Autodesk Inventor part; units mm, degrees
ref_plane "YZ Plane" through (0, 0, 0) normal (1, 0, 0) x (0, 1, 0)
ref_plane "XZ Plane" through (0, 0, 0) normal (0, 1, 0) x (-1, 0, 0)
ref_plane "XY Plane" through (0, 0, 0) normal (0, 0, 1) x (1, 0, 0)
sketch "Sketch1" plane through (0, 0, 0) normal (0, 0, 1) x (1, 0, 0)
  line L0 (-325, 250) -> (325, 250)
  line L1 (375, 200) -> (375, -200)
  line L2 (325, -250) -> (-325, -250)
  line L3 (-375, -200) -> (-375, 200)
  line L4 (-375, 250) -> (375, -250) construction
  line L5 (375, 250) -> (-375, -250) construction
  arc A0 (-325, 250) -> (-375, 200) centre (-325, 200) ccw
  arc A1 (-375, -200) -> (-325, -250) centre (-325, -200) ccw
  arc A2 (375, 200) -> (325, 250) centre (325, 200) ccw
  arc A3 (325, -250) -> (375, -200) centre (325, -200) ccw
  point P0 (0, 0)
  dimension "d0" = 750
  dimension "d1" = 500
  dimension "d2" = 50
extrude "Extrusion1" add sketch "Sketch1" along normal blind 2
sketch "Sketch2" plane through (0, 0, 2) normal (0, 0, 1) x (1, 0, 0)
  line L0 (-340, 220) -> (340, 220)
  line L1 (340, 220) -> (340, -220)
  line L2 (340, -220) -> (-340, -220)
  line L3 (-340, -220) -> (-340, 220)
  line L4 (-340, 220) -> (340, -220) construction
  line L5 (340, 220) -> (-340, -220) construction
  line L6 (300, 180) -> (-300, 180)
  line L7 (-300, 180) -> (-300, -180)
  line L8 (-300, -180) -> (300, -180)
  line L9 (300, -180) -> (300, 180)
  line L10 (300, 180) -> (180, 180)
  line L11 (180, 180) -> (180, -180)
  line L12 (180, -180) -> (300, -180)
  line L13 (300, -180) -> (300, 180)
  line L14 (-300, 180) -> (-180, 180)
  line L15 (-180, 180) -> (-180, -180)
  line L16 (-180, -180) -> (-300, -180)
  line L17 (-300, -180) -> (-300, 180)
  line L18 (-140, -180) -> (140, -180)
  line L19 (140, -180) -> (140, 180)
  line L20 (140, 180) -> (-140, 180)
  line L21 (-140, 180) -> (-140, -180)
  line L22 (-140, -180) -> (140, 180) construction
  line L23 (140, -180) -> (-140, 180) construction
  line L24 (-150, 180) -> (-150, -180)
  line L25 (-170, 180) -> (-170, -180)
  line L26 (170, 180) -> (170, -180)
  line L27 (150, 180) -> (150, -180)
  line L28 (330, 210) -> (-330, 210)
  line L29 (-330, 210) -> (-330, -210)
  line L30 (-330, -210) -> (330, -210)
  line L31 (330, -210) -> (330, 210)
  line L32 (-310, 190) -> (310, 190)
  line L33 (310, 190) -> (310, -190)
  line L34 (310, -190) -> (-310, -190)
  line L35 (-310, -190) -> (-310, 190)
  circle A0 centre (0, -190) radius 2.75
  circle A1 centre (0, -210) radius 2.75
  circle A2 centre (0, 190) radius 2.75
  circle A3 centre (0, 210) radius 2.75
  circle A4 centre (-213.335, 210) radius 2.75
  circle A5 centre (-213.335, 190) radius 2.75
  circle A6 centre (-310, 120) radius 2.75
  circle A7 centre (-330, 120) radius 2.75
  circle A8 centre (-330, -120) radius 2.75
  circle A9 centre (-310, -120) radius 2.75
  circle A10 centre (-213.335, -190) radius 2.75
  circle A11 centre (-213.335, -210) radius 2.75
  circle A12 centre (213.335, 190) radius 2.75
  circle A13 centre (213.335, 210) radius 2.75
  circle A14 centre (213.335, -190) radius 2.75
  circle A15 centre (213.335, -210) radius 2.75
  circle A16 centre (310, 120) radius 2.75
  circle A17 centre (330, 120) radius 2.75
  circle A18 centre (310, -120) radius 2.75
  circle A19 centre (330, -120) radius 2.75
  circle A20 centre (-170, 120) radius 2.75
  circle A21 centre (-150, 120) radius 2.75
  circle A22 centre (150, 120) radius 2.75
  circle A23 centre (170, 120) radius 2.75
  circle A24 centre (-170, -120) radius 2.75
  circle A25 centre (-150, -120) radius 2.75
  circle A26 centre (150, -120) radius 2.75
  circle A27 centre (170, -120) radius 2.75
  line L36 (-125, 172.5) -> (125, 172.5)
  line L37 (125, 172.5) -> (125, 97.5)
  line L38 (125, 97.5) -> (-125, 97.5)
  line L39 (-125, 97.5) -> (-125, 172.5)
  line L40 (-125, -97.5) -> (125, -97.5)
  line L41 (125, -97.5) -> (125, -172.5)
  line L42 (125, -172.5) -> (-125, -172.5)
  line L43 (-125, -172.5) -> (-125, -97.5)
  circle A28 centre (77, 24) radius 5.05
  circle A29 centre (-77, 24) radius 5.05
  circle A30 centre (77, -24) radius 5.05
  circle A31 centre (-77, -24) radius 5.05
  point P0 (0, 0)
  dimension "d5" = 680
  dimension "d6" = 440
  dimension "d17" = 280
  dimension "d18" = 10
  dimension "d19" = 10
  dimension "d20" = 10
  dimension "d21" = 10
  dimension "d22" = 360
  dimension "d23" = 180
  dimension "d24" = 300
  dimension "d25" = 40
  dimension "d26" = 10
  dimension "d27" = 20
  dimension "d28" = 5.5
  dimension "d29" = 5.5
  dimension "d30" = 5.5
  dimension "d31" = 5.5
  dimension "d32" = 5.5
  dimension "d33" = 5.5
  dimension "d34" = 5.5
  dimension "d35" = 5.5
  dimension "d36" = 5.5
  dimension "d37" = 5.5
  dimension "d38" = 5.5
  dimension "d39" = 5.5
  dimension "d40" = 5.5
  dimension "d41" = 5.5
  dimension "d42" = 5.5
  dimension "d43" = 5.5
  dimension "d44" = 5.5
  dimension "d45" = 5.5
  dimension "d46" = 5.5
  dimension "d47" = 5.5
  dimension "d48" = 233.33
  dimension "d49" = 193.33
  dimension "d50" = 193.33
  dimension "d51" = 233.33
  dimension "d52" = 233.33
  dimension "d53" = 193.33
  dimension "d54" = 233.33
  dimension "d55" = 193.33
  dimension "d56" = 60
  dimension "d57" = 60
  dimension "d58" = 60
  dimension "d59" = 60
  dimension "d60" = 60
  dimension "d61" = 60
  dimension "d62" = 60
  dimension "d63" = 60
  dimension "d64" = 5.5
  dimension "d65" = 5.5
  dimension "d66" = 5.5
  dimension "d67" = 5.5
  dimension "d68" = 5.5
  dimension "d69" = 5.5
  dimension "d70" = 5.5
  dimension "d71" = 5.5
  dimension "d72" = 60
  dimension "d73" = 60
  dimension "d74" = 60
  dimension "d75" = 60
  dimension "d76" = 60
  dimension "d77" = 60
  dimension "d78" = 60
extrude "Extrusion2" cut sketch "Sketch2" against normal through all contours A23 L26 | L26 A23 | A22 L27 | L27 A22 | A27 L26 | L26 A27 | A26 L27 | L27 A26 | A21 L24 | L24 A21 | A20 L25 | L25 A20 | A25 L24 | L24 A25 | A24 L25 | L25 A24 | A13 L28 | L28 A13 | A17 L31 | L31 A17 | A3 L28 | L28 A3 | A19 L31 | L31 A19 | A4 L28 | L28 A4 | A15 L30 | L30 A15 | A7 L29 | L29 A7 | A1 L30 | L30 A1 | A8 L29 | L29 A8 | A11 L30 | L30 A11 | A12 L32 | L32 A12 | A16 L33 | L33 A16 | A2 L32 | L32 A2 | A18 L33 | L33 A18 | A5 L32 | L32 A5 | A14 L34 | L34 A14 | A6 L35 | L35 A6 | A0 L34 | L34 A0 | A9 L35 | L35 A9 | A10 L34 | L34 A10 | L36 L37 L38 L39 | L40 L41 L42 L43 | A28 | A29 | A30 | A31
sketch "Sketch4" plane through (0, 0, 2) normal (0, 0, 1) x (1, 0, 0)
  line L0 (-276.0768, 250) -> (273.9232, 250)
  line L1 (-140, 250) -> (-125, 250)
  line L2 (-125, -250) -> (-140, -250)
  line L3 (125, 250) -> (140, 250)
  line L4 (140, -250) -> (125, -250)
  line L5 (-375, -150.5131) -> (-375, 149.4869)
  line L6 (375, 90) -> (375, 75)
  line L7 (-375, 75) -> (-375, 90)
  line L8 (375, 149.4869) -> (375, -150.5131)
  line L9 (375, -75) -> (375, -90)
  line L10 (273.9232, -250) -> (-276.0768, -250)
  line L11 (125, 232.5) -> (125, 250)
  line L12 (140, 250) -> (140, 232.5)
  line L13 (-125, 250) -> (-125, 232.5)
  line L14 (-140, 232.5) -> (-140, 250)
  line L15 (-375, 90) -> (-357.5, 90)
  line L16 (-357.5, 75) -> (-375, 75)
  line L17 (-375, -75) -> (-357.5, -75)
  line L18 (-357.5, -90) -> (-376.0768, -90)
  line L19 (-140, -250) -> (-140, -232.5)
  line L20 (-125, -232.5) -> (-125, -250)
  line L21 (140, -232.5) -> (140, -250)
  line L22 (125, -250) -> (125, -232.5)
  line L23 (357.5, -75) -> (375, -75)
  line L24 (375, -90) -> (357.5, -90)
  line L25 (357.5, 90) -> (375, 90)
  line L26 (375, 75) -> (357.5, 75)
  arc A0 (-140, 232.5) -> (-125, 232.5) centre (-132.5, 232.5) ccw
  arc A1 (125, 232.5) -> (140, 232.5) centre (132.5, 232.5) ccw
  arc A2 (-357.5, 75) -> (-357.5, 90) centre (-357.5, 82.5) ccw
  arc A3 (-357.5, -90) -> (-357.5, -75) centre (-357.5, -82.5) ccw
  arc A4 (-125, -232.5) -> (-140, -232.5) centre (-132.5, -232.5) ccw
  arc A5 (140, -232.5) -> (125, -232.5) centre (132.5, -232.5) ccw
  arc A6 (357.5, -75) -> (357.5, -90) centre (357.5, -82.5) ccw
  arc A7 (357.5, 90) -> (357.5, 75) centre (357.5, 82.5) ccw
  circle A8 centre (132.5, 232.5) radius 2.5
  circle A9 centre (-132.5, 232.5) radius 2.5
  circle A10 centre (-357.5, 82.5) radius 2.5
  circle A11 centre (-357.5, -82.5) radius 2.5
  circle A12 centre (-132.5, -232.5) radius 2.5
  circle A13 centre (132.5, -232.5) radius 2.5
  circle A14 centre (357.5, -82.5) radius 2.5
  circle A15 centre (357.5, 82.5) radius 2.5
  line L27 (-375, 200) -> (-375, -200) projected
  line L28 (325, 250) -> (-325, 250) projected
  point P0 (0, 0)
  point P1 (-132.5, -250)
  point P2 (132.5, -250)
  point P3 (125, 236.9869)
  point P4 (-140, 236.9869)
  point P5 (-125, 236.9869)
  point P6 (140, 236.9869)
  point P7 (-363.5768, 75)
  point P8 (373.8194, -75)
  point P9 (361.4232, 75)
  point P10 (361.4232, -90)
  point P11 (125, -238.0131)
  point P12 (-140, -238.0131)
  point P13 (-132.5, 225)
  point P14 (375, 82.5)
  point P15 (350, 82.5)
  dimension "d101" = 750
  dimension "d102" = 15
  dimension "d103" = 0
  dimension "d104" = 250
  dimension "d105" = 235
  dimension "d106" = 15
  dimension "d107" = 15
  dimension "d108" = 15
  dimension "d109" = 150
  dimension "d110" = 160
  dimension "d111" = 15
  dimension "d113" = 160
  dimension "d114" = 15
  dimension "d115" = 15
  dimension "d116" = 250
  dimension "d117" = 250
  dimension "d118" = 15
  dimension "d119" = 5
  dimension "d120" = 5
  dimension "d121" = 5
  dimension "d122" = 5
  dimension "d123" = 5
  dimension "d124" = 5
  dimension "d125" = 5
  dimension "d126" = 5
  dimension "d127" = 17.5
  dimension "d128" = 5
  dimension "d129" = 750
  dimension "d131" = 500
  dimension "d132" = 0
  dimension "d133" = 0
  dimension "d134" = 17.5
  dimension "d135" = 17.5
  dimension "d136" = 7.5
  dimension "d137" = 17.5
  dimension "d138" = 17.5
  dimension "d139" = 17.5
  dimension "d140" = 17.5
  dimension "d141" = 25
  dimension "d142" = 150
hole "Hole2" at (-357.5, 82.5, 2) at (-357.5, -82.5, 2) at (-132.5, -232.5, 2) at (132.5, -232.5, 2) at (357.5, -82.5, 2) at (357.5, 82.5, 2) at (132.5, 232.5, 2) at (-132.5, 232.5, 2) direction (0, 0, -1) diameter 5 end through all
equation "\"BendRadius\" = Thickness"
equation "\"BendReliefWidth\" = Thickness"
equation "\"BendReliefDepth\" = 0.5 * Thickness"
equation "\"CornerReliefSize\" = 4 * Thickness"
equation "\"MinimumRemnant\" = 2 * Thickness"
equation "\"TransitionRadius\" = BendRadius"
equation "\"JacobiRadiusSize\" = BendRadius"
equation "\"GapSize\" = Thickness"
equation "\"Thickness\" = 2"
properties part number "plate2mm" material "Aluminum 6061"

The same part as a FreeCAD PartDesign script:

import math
import FreeCAD as App
import Part
import Sketcher

V = App.Vector


def add_polygon(sketch, points):
    """Adds a closed chain of lines whose ends are joined by coincident constraints."""
    first, n = sketch.GeometryCount, len(points)
    for a, b in zip(points, points[1:] + points[:1]):
        sketch.addGeometry(Part.LineSegment(App.Vector(*a, 0), App.Vector(*b, 0)), False)
    for i in range(n):
        sketch.addConstraint(Sketcher.Constraint("Coincident", first + i, 2, first + (i + 1) % n, 1))

doc = App.newDocument("Part")
body = doc.addObject("PartDesign::Body", "Body")

sketch1 = body.newObject("Sketcher::SketchObject", "Sketch")
sketch1.AttachmentSupport = (doc.getObject("XY_Plane"), [""])
sketch1.MapMode = "FlatFace"
sketch1.addGeometry([
    Part.LineSegment(V(325, 250, 0), V(-325, 250, 0)),
    Part.ArcOfCircle(Part.Circle(V(-325, 200, 0), V(0, 0, 1), 50), math.radians(90), math.radians(180)),
    Part.LineSegment(V(-375, 200, 0), V(-375, -200, 0)),
    Part.ArcOfCircle(Part.Circle(V(-325, -200, 0), V(0, 0, 1), 50), math.radians(180), math.radians(270)),
    Part.LineSegment(V(-325, -250, 0), V(325, -250, 0)),
    Part.ArcOfCircle(Part.Circle(V(325, -200, 0), V(0, 0, 1), 50), math.radians(-90), math.radians(0)),
    Part.LineSegment(V(375, -200, 0), V(375, 200, 0)),
    Part.ArcOfCircle(Part.Circle(V(325, 200, 0), V(0, 0, 1), 50), math.radians(0), math.radians(90)),
], False)
sketch1.addConstraint([
    Sketcher.Constraint("Tangent", 0, 2, 1, 1),
    Sketcher.Constraint("Tangent", 1, 2, 2, 1),
    Sketcher.Constraint("Tangent", 2, 2, 3, 1),
    Sketcher.Constraint("Tangent", 3, 2, 4, 1),
    Sketcher.Constraint("Tangent", 4, 2, 5, 1),
    Sketcher.Constraint("Tangent", 5, 2, 6, 1),
    Sketcher.Constraint("Tangent", 6, 2, 7, 1),
    Sketcher.Constraint("Tangent", 7, 2, 0, 1),
    Sketcher.Constraint("Horizontal", 0),
    Sketcher.Constraint("Vertical", 2),
    Sketcher.Constraint("Horizontal", 4),
    Sketcher.Constraint("Vertical", 6),
    Sketcher.Constraint("Equal", 1, 3),
    Sketcher.Constraint("Equal", 3, 5),
    Sketcher.Constraint("Equal", 5, 7),
    Sketcher.Constraint("Symmetric", 1, 3, 5, 3, -1, 1),
    Sketcher.Constraint("Radius", 1, 50.0),
    Sketcher.Constraint("DistanceY", 3, 2, 0, 2, 500.0),
    Sketcher.Constraint("DistanceX", 0, 2, 0, 1, 650.0),
])
pad1 = body.newObject("PartDesign::Pad", "Pad")
pad1.Profile = sketch1
pad1.Length = 2

sketch2 = body.newObject("Sketcher::SketchObject", "Sketch001")
sketch2.AttachmentSupport = (doc.getObject("XY_Plane"), [""])
sketch2.MapMode = "FlatFace"
sketch2.AttachmentOffset = App.Placement(V(0, 0, 2), App.Rotation())
sketch2.addGeometry(Part.Circle(V(170, 120, 0), V(0, 0, 1), 2.8), False)
sketch2.addGeometry(Part.Circle(V(150, 120, 0), V(0, 0, 1), 2.8), False)
sketch2.addGeometry(Part.Circle(V(170, -120, 0), V(0, 0, 1), 2.8), False)
sketch2.addGeometry(Part.Circle(V(150, -120, 0), V(0, 0, 1), 2.8), False)
sketch2.addGeometry(Part.Circle(V(-150, 120, 0), V(0, 0, 1), 2.8), False)
sketch2.addGeometry(Part.Circle(V(-170, 120, 0), V(0, 0, 1), 2.8), False)
sketch2.addGeometry(Part.Circle(V(-150, -120, 0), V(0, 0, 1), 2.8), False)
sketch2.addGeometry(Part.Circle(V(-170, -120, 0), V(0, 0, 1), 2.8), False)
sketch2.addGeometry(Part.Circle(V(213.3, 210, 0), V(0, 0, 1), 2.8), False)
sketch2.addGeometry(Part.Circle(V(330, 120, 0), V(0, 0, 1), 2.8), False)
sketch2.addGeometry(Part.Circle(V(0, 210, 0), V(0, 0, 1), 2.8), False)
sketch2.addGeometry(Part.Circle(V(330, -120, 0), V(0, 0, 1), 2.8), False)
sketch2.addGeometry(Part.Circle(V(-213.3, 210, 0), V(0, 0, 1), 2.8), False)
sketch2.addGeometry(Part.Circle(V(213.3, -210, 0), V(0, 0, 1), 2.8), False)
sketch2.addGeometry(Part.Circle(V(-330, 120, 0), V(0, 0, 1), 2.8), False)
sketch2.addGeometry(Part.Circle(V(0, -210, 0), V(0, 0, 1), 2.8), False)
sketch2.addGeometry(Part.Circle(V(-330, -120, 0), V(0, 0, 1), 2.8), False)
sketch2.addGeometry(Part.Circle(V(-213.3, -210, 0), V(0, 0, 1), 2.8), False)
sketch2.addGeometry(Part.Circle(V(213.3, 190, 0), V(0, 0, 1), 2.8), False)
sketch2.addGeometry(Part.Circle(V(310, 120, 0), V(0, 0, 1), 2.8), False)
sketch2.addGeometry(Part.Circle(V(0, 190, 0), V(0, 0, 1), 2.8), False)
sketch2.addGeometry(Part.Circle(V(310, -120, 0), V(0, 0, 1), 2.8), False)
sketch2.addGeometry(Part.Circle(V(-213.3, 190, 0), V(0, 0, 1), 2.8), False)
sketch2.addGeometry(Part.Circle(V(213.3, -190, 0), V(0, 0, 1), 2.8), False)
sketch2.addGeometry(Part.Circle(V(-310, 120, 0), V(0, 0, 1), 2.8), False)
sketch2.addGeometry(Part.Circle(V(0, -190, 0), V(0, 0, 1), 2.8), False)
sketch2.addGeometry(Part.Circle(V(-310, -120, 0), V(0, 0, 1), 2.8), False)
sketch2.addGeometry(Part.Circle(V(-213.3, -190, 0), V(0, 0, 1), 2.8), False)
add_polygon(sketch2, [(125, 172.5), (-125, 172.5), (-125, 97.5), (125, 97.5)])
add_polygon(sketch2, [(125, -97.5), (-125, -97.5), (-125, -172.5), (125, -172.5)])
sketch2.addGeometry(Part.Circle(V(77, 24, 0), V(0, 0, 1), 5), False)
sketch2.addGeometry(Part.Circle(V(-77, 24, 0), V(0, 0, 1), 5), False)
sketch2.addGeometry(Part.Circle(V(77, -24, 0), V(0, 0, 1), 5), False)
sketch2.addGeometry(Part.Circle(V(-77, -24, 0), V(0, 0, 1), 5), False)
sketch2.addConstraint([
    Sketcher.Constraint("Horizontal", 28),
    Sketcher.Constraint("Vertical", 29),
    Sketcher.Constraint("Horizontal", 30),
    Sketcher.Constraint("Vertical", 31),
    Sketcher.Constraint("Horizontal", 32),
    Sketcher.Constraint("Vertical", 33),
    Sketcher.Constraint("Horizontal", 34),
    Sketcher.Constraint("Vertical", 35),
    Sketcher.Constraint("Equal", 0, 1),
    Sketcher.Constraint("Equal", 1, 2),
    Sketcher.Constraint("Equal", 2, 3),
    Sketcher.Constraint("Equal", 3, 4),
    Sketcher.Constraint("Equal", 4, 5),
    Sketcher.Constraint("Equal", 5, 6),
    Sketcher.Constraint("Equal", 6, 7),
    Sketcher.Constraint("Equal", 7, 8),
    Sketcher.Constraint("Equal", 8, 9),
    Sketcher.Constraint("Equal", 9, 10),
    Sketcher.Constraint("Equal", 10, 11),
    Sketcher.Constraint("Equal", 11, 12),
    Sketcher.Constraint("Equal", 12, 13),
    Sketcher.Constraint("Equal", 13, 14),
    Sketcher.Constraint("Equal", 14, 15),
    Sketcher.Constraint("Equal", 15, 16),
    Sketcher.Constraint("Equal", 16, 17),
    Sketcher.Constraint("Equal", 17, 18),
    Sketcher.Constraint("Equal", 18, 19),
    Sketcher.Constraint("Equal", 19, 20),
    Sketcher.Constraint("Equal", 20, 21),
    Sketcher.Constraint("Equal", 21, 22),
    Sketcher.Constraint("Equal", 22, 23),
    Sketcher.Constraint("Equal", 23, 24),
    Sketcher.Constraint("Equal", 24, 25),
    Sketcher.Constraint("Equal", 25, 26),
    Sketcher.Constraint("Equal", 26, 27),
    Sketcher.Constraint("Equal", 36, 37),
    Sketcher.Constraint("Equal", 37, 38),
    Sketcher.Constraint("Equal", 38, 39),
    Sketcher.Constraint("Symmetric", 3, 3, 4, 3, -1, 1),
    Sketcher.Constraint("Symmetric", 2, 3, 5, 3, -1, 1),
    Sketcher.Constraint("Symmetric", 1, 3, 6, 3, -1, 1),
    Sketcher.Constraint("Symmetric", 0, 3, 7, 3, -1, 1),
    Sketcher.Constraint("Symmetric", 12, 3, 13, 3, -1, 1),
    Sketcher.Constraint("Symmetric", 11, 3, 14, 3, -1, 1),
    Sketcher.Constraint("Symmetric", 10, 3, 15, 3, -1, 1),
    Sketcher.Constraint("Symmetric", 9, 3, 16, 3, -1, 1),
    Sketcher.Constraint("Symmetric", 8, 3, 17, 3, -1, 1),
    Sketcher.Constraint("Symmetric", 22, 3, 23, 3, -1, 1),
    Sketcher.Constraint("Symmetric", 21, 3, 24, 3, -1, 1),
    Sketcher.Constraint("Symmetric", 20, 3, 25, 3, -1, 1),
    Sketcher.Constraint("Symmetric", 19, 3, 26, 3, -1, 1),
    Sketcher.Constraint("Symmetric", 18, 3, 27, 3, -1, 1),
    Sketcher.Constraint("Symmetric", 37, 3, 38, 3, -1, 1),
    Sketcher.Constraint("Symmetric", 36, 3, 39, 3, -1, 1),
    Sketcher.Constraint("Symmetric", 30, 2, 32, 2, -1, 1),
    Sketcher.Constraint("Symmetric", 28, 2, 34, 2, -1, 1),
    Sketcher.Constraint("Symmetric", 1, 3, 4, 3, -2),
    Sketcher.Constraint("Symmetric", 0, 3, 5, 3, -2),
    Sketcher.Constraint("Symmetric", 8, 3, 12, 3, -2),
    Sketcher.Constraint("Symmetric", 9, 3, 14, 3, -2),
    Sketcher.Constraint("Symmetric", 18, 3, 22, 3, -2),
    Sketcher.Constraint("Symmetric", 19, 3, 24, 3, -2),
    Sketcher.Constraint("Symmetric", 36, 3, 37, 3, -2),
    Sketcher.Constraint("PointOnObject", 10, 3, -2),
    Sketcher.Constraint("PointOnObject", 20, 3, -2),
    Sketcher.Constraint("Horizontal", 0, 3, 1, 3),
    Sketcher.Constraint("Horizontal", 5, 3, 9, 3),
    Sketcher.Constraint("Horizontal", 8, 3, 10, 3),
    Sketcher.Constraint("Horizontal", 14, 3, 19, 3),
    Sketcher.Constraint("Horizontal", 18, 3, 20, 3),
    Sketcher.Constraint("Vertical", 13, 3, 18, 3),
    Sketcher.Constraint("Vertical", 29, 2, 32, 2),
    Sketcher.Constraint("Diameter", 0, 5.5),
    Sketcher.Constraint("DistanceX", 1, 3, 0, 3, 20.0),
    Sketcher.Constraint("DistanceX", 4, 3, 1, 3, 300.0),
    Sketcher.Constraint("DistanceX", 1, 3, 9, 3, 180.0),
    Sketcher.Constraint("DistanceY", 18, 3, 8, 3, 20.0),
    Sketcher.Constraint("DistanceX", 19, 3, 9, 3, 20.0),
    Sketcher.Constraint("Diameter", 36, 10.1),
    Sketcher.Constraint("DistanceX", 28, 2, 28, 1, 250.0),
    Sketcher.Constraint("DistanceY", 29, 2, 29, 1, 75.0),
    Sketcher.Constraint("DistanceY", -1, 1, 0, 3, 120.0),
    Sketcher.Constraint("DistanceY", -1, 1, 8, 3, 210.0),
    Sketcher.Constraint("DistanceX", -1, 1, 36, 3, 77.0),
    Sketcher.Constraint("DistanceY", -1, 1, 36, 3, 24.0),
    Sketcher.Constraint("DistanceY", -1, 1, 28, 2, 172.5),
    Sketcher.Constraint("DistanceX", -1, 1, 8, 3, 213.335),
])
pocket1 = body.newObject("PartDesign::Pocket", "Pocket")
pocket1.Profile = sketch2
pocket1.Type = "ThroughAll"

sketch3 = body.newObject("Sketcher::SketchObject", "Sketch002")
sketch3.AttachmentSupport = (doc.getObject("XY_Plane"), [""])
sketch3.MapMode = "FlatFace"
sketch3.AttachmentOffset = App.Placement(V(0, 0, 2), App.Rotation())
sketch3.addGeometry([
    Part.Circle(V(-357.5, 82.5, 0), V(0, 0, 1), 2.5),
    Part.Circle(V(-357.5, -82.5, 0), V(0, 0, 1), 2.5),
    Part.Circle(V(-132.5, -232.5, 0), V(0, 0, 1), 2.5),
    Part.Circle(V(132.5, -232.5, 0), V(0, 0, 1), 2.5),
    Part.Circle(V(357.5, -82.5, 0), V(0, 0, 1), 2.5),
    Part.Circle(V(357.5, 82.5, 0), V(0, 0, 1), 2.5),
    Part.Circle(V(132.5, 232.5, 0), V(0, 0, 1), 2.5),
    Part.Circle(V(-132.5, 232.5, 0), V(0, 0, 1), 2.5),
], False)
sketch3.addConstraint([
    Sketcher.Constraint("Equal", 0, 1),
    Sketcher.Constraint("Equal", 1, 2),
    Sketcher.Constraint("Equal", 2, 3),
    Sketcher.Constraint("Equal", 3, 4),
    Sketcher.Constraint("Equal", 4, 5),
    Sketcher.Constraint("Equal", 5, 6),
    Sketcher.Constraint("Equal", 6, 7),
    Sketcher.Constraint("Symmetric", 0, 3, 4, 3, -1, 1),
    Sketcher.Constraint("Symmetric", 1, 3, 5, 3, -1, 1),
    Sketcher.Constraint("Symmetric", 2, 3, 6, 3, -1, 1),
    Sketcher.Constraint("Symmetric", 3, 3, 7, 3, -1, 1),
    Sketcher.Constraint("Symmetric", 2, 3, 3, 3, -2),
    Sketcher.Constraint("Symmetric", 1, 3, 4, 3, -2),
    Sketcher.Constraint("Diameter", 0, 5.0),
    Sketcher.Constraint("DistanceY", 1, 3, 0, 3, 165.0),
    Sketcher.Constraint("DistanceX", 1, 3, 2, 3, 225.0),
    Sketcher.Constraint("DistanceY", 2, 3, 1, 3, 150.0),
    Sketcher.Constraint("DistanceX", 2, 3, 3, 3, 265.0),
])
doc.recompute()
hole = body.newObject("PartDesign::Hole", "Hole")
hole.Profile = sketch3
hole.ThreadType = "None"
hole.Diameter = 5
hole.DepthType = "ThroughAll"

doc.recompute()
